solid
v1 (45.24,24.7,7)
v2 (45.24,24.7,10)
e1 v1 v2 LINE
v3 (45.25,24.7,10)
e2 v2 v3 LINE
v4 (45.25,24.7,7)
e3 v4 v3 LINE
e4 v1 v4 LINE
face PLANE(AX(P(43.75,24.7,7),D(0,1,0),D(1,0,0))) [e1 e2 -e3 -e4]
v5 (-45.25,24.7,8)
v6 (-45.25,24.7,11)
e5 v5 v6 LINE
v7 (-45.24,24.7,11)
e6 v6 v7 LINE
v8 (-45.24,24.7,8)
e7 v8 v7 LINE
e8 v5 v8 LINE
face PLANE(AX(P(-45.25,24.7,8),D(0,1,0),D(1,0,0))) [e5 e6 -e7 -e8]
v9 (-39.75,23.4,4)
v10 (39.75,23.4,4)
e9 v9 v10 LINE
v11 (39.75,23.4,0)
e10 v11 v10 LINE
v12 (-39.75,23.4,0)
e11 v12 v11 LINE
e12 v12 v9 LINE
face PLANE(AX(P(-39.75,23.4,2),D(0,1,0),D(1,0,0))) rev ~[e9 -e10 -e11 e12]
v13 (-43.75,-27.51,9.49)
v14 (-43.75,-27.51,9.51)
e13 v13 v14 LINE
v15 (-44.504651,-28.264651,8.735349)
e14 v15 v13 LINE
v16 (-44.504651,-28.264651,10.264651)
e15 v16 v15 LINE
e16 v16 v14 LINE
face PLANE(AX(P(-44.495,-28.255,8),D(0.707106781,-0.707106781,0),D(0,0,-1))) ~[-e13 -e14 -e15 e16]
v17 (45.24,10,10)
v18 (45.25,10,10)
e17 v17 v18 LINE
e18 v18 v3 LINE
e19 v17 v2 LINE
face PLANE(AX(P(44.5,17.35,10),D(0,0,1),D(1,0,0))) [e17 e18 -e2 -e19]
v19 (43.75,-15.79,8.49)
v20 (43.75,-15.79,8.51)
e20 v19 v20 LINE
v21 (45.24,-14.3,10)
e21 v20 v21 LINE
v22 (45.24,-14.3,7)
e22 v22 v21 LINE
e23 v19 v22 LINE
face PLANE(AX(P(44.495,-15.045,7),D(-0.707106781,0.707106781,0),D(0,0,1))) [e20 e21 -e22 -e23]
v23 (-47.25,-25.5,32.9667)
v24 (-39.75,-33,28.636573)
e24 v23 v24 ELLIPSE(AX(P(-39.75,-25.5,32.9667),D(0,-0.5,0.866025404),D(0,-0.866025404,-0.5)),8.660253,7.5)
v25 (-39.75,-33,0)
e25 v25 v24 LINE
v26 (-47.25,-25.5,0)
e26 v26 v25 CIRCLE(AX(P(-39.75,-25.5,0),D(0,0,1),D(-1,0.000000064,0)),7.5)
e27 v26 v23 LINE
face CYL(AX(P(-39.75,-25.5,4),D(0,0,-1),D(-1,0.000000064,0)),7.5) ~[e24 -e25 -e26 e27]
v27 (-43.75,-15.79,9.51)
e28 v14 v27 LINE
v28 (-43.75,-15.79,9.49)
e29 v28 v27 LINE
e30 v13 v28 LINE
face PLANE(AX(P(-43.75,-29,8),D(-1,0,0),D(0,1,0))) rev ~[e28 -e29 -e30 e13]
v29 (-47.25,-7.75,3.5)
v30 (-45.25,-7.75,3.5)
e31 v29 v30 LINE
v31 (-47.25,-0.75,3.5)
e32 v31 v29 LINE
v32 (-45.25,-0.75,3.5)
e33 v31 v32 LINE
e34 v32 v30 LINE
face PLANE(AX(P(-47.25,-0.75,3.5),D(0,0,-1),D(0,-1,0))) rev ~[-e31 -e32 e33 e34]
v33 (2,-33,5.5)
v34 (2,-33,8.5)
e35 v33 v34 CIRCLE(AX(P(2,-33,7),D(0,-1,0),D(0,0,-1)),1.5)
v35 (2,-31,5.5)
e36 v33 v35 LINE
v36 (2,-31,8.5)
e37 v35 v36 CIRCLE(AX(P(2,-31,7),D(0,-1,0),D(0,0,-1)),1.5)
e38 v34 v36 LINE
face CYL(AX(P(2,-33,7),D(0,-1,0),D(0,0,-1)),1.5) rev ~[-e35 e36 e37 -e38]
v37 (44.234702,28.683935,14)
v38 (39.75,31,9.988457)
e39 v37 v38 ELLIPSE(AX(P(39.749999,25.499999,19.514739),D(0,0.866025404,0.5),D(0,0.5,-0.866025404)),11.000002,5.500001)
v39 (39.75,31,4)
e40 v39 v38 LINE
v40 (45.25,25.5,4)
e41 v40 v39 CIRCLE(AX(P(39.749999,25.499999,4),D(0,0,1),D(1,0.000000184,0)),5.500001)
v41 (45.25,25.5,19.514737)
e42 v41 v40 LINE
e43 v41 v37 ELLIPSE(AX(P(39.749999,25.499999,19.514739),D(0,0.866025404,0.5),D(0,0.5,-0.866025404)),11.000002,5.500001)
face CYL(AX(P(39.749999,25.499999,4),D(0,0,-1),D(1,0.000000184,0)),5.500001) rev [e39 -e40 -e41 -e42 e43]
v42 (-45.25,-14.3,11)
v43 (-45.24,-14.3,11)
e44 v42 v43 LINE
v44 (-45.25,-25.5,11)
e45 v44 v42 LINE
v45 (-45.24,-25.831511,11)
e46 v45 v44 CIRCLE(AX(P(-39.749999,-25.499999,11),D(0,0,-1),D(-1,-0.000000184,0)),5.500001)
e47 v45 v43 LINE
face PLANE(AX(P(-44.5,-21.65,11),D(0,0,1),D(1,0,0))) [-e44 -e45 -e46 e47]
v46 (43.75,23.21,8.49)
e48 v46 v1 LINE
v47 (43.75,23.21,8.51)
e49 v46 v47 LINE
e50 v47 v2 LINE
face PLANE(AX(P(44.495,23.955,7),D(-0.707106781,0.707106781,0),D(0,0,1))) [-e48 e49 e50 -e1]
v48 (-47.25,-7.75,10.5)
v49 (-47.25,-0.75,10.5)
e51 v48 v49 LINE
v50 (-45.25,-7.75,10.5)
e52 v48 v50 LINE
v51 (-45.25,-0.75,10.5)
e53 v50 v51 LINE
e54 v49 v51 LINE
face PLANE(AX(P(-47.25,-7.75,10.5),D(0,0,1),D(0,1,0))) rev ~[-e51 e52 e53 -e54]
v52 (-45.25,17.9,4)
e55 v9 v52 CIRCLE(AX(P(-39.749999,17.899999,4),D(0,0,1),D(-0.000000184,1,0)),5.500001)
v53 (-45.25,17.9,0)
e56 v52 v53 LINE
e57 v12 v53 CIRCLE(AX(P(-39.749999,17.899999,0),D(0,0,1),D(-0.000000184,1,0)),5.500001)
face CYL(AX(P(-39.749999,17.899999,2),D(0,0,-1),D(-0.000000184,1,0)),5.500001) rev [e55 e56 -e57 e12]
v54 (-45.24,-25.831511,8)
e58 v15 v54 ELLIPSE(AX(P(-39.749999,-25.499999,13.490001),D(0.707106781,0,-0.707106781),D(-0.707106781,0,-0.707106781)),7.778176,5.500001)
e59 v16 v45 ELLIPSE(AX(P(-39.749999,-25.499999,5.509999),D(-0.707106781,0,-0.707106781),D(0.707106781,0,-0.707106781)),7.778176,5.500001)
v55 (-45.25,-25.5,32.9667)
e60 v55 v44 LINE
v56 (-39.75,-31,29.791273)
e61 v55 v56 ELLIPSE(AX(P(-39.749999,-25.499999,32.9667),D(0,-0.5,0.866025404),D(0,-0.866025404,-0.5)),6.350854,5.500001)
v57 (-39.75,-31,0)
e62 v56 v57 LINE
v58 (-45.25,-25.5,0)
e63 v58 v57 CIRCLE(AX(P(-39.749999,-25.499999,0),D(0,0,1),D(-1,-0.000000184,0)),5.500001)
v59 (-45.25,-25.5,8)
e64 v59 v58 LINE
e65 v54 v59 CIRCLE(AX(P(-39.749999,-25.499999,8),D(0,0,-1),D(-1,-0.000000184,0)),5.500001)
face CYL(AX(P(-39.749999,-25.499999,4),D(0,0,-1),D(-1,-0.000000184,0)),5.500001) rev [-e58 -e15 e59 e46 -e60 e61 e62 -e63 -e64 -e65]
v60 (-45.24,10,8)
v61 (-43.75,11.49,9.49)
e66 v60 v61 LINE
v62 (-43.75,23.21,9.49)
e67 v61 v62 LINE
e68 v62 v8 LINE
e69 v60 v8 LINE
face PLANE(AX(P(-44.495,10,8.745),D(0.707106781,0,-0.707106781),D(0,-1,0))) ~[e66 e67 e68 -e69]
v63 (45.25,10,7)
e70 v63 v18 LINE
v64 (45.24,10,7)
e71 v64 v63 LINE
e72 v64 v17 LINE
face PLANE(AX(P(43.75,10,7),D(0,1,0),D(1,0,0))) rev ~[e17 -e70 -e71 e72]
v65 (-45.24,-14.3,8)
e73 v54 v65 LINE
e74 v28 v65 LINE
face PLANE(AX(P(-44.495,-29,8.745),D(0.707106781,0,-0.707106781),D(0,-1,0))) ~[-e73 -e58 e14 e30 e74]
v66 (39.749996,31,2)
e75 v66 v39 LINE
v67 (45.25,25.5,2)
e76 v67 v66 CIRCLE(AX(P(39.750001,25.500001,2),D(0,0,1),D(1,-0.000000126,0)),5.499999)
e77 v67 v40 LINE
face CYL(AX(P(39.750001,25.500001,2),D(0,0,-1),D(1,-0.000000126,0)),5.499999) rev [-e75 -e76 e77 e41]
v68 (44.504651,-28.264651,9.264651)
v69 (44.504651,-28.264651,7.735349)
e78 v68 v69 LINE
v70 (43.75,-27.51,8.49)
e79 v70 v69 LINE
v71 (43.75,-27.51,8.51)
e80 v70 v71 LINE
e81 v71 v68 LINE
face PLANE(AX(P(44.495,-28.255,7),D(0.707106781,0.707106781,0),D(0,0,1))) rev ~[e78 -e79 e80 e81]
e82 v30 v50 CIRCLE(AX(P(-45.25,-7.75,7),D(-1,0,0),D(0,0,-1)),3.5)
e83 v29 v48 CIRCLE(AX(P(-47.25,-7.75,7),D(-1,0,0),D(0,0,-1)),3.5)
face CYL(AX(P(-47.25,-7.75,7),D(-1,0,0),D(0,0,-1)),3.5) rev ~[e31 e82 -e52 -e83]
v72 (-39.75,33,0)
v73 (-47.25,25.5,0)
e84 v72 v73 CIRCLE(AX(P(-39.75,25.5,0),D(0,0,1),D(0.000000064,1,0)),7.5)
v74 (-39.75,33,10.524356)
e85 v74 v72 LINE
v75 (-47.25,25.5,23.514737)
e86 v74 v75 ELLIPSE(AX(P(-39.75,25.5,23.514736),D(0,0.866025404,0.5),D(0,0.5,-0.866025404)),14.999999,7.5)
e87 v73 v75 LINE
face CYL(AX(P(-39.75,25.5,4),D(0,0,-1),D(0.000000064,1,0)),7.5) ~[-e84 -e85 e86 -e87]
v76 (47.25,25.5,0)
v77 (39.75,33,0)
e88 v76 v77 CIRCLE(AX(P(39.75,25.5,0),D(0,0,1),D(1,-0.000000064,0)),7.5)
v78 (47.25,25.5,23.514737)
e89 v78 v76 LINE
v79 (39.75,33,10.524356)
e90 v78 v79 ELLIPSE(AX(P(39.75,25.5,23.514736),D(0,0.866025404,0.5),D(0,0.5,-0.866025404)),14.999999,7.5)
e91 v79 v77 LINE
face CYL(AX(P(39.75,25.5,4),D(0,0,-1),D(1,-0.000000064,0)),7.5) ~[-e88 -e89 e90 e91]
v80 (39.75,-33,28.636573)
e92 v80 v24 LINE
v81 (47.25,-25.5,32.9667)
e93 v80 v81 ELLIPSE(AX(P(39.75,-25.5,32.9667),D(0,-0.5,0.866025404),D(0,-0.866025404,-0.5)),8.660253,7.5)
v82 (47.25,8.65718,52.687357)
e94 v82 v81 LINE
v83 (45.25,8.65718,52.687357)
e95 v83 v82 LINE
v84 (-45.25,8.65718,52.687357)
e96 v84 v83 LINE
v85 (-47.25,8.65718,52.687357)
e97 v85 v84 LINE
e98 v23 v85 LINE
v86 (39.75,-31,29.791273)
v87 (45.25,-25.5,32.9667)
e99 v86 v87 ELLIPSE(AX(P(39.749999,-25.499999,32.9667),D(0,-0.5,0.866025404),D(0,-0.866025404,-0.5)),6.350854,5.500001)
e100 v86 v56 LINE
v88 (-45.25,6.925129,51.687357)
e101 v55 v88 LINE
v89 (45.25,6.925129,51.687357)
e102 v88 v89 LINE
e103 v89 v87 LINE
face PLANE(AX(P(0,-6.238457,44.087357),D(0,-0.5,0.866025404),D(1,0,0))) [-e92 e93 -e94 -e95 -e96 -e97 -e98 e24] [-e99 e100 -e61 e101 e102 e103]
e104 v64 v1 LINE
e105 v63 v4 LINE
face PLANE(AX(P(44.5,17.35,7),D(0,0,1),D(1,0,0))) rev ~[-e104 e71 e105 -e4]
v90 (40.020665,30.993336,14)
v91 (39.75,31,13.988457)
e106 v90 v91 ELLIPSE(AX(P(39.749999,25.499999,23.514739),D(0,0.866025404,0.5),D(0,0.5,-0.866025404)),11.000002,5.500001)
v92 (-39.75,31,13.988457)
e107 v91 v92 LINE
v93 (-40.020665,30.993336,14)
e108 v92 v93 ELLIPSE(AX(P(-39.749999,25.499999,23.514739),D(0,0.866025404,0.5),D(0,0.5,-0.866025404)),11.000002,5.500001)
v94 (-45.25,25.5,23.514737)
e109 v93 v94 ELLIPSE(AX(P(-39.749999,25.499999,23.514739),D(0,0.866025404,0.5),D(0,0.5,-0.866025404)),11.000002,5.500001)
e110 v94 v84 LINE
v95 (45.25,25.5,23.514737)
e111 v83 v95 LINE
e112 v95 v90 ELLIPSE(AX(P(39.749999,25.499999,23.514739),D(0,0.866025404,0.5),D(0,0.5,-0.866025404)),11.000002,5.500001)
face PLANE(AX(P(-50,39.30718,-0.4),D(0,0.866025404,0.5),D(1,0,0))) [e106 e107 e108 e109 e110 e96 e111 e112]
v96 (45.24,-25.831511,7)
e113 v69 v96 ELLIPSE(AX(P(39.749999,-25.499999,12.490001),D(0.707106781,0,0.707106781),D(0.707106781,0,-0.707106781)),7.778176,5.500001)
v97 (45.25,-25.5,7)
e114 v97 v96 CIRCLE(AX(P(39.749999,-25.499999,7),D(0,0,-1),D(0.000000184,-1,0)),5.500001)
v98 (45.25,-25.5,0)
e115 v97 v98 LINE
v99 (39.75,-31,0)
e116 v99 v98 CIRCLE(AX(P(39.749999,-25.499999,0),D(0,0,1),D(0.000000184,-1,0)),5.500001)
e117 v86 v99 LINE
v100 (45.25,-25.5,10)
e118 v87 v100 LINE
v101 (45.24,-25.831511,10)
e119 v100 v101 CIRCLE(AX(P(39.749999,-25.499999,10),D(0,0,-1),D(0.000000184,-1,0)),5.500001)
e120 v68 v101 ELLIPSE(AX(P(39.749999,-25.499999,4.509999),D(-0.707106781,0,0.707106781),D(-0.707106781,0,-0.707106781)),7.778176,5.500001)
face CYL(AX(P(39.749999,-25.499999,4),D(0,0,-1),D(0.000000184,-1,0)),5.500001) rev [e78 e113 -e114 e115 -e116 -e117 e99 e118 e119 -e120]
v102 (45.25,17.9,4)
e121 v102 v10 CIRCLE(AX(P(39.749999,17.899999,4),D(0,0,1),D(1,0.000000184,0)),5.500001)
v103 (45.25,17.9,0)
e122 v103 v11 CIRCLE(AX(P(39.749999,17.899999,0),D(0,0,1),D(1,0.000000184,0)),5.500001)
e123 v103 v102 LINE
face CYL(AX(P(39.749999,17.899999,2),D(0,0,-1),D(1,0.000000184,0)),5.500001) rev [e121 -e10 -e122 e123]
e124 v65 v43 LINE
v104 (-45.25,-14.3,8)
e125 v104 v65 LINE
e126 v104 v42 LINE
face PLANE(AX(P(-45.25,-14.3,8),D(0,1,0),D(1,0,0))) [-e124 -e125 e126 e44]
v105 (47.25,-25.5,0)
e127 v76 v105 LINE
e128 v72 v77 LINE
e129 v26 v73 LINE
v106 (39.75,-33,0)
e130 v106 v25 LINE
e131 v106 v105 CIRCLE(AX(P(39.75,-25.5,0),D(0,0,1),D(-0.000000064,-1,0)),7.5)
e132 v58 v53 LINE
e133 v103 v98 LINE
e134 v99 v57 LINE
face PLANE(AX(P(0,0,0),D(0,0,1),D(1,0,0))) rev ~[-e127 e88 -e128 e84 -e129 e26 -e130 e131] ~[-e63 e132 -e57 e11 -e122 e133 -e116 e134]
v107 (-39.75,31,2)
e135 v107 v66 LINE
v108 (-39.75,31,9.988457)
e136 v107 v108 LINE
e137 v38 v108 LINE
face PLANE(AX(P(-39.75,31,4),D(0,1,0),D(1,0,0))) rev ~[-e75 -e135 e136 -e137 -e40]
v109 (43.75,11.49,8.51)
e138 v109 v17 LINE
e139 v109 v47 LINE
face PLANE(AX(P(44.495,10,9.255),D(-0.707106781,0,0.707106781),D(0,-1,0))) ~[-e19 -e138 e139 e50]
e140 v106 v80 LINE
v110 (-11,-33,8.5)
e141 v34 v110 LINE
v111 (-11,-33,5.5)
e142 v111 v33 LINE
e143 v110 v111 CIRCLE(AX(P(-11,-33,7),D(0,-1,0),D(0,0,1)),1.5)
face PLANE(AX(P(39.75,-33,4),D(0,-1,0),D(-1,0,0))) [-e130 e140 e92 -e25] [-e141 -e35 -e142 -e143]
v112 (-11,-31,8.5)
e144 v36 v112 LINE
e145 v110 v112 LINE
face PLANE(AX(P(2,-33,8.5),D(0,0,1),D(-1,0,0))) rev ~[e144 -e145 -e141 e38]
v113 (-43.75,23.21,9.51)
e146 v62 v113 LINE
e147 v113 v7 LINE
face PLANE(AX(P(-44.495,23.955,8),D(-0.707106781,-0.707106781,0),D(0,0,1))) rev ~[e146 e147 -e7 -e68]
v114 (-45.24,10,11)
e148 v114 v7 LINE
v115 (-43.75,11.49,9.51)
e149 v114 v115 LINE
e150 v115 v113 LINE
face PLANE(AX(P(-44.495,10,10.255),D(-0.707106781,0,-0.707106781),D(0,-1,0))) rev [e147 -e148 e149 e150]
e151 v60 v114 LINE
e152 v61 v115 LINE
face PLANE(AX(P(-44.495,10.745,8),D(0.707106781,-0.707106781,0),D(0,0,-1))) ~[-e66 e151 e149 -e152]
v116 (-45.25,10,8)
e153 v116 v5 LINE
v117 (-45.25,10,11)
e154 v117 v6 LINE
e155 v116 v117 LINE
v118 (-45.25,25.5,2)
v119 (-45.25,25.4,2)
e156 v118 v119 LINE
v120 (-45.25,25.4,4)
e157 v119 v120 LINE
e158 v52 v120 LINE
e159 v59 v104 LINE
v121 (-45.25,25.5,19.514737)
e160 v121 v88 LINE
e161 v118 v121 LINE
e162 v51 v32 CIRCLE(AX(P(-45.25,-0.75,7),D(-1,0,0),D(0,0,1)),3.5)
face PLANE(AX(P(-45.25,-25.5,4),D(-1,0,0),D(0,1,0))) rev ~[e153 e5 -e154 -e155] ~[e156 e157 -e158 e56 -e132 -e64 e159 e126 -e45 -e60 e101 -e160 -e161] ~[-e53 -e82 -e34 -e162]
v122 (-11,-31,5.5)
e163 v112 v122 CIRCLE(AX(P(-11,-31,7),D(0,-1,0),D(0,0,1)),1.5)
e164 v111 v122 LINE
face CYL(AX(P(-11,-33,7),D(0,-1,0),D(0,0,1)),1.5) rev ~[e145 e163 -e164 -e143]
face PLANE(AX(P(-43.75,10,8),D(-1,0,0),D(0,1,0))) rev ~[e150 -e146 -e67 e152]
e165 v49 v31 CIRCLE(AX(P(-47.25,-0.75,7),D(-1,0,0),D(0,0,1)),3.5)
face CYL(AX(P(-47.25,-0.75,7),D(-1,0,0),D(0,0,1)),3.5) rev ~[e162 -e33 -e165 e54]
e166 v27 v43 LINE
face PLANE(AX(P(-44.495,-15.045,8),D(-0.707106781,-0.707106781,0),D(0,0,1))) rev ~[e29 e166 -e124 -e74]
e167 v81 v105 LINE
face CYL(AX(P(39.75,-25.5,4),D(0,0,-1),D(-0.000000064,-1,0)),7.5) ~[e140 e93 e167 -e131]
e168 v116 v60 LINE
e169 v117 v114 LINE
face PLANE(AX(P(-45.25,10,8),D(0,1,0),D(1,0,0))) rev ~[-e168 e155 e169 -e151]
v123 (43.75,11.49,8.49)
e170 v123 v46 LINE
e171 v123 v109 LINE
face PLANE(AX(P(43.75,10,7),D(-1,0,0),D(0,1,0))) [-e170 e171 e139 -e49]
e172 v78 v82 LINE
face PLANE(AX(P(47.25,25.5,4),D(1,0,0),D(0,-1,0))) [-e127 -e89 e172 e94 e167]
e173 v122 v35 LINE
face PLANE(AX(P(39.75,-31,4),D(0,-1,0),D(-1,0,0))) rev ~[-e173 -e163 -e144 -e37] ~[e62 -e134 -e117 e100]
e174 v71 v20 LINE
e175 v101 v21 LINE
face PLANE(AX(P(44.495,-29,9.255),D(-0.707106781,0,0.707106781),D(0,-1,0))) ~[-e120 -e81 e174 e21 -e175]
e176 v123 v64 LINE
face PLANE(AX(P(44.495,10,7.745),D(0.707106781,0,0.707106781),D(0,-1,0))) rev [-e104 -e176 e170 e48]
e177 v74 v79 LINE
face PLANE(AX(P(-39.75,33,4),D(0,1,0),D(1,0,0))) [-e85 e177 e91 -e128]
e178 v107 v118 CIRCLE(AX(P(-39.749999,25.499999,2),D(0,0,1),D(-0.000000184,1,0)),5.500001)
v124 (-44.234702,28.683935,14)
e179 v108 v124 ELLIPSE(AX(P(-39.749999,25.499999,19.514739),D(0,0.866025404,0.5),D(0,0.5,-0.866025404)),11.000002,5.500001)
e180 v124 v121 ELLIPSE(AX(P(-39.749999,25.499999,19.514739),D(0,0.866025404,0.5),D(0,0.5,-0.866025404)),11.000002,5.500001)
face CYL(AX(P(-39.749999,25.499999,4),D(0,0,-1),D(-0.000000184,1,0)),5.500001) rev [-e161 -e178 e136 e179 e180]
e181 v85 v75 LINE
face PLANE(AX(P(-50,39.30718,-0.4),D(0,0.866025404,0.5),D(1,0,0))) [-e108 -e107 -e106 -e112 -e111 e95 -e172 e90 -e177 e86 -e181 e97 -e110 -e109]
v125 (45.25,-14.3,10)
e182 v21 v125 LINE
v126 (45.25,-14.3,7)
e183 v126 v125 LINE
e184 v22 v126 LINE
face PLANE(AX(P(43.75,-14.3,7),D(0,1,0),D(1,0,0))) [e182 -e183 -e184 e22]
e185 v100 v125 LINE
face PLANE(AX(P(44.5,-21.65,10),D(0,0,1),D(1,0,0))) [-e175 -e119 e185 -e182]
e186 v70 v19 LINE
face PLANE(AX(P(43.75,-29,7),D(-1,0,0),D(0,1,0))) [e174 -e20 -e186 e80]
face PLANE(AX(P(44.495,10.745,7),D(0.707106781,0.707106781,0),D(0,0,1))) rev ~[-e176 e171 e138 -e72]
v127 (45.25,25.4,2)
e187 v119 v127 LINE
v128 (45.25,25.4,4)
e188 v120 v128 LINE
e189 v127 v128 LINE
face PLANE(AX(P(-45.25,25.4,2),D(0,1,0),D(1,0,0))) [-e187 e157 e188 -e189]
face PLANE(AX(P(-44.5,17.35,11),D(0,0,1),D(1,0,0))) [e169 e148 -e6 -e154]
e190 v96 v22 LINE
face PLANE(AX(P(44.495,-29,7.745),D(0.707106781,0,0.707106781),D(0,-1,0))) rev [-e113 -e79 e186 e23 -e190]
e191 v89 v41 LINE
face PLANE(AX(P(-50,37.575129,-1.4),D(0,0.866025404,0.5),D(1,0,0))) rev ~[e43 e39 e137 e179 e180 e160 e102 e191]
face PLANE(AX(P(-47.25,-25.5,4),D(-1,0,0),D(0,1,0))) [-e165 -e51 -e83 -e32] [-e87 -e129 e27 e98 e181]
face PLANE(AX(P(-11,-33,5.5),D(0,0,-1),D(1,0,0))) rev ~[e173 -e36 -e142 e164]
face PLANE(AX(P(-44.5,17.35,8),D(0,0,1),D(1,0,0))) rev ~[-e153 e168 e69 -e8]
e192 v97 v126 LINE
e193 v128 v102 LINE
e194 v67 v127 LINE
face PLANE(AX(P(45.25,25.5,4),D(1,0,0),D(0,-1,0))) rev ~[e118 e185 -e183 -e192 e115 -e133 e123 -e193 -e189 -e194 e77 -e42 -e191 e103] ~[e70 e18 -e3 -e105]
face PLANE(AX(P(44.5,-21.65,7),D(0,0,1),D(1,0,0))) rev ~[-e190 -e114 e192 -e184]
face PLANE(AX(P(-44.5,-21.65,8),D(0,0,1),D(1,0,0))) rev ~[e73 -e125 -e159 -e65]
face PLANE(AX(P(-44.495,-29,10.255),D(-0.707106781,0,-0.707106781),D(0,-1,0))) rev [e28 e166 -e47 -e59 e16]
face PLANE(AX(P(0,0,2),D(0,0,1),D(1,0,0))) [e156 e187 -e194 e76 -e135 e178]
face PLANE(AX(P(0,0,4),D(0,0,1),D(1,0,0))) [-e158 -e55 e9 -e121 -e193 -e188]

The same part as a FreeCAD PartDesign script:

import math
import FreeCAD as App
import Part
import Sketcher


def edges_at(feature, points):
    """Names of the edges that pass closest to the given points."""
    edges = feature.Shape.Edges
    near = lambda p: min(range(len(edges)), key=lambda i: edges[i].distToShape(Part.Vertex(*p))[0])
    return sorted({f"Edge{near(p) + 1}" for p in points})


def add_polygon(sketch, points):
    """Adds a closed chain of lines whose ends are joined by coincident constraints."""
    first, n = sketch.GeometryCount, len(points)
    for a, b in zip(points, points[1:] + points[:1]):
        sketch.addGeometry(Part.LineSegment(App.Vector(*a, 0), App.Vector(*b, 0)), False)
    for i in range(n):
        sketch.addConstraint(Sketcher.Constraint("Coincident", first + i, 2, first + (i + 1) % n, 1))

doc = App.newDocument("Part")
body = doc.addObject("PartDesign::Body", "Body")

sketch1 = doc.addObject("Sketcher::SketchObject", "Sketch")
body.addObject(sketch1)
sketch1.AttachmentSupport = (doc.XY_Plane, [""])
sketch1.MapMode = "FlatFace"
sketch1.AttachmentOffset = App.Placement(App.Vector(0, 0, 8), App.Rotation())
add_polygon(sketch1, [(-45.2, -14.3), (-45.2, -29), (-43.8, -29), (-43.8, -14.3)])
sketch1.addConstraint([
    Sketcher.Constraint("Vertical", 0),
    Sketcher.Constraint("Horizontal", 1),
    Sketcher.Constraint("Vertical", 2),
    Sketcher.Constraint("Horizontal", 3),
    Sketcher.Constraint("DistanceX", 1, 1, 1, 2, 1.5),
    Sketcher.Constraint("DistanceY", 0, 2, 0, 1, 14.7),
    Sketcher.Constraint("DistanceY", 0, 2, -1, 1, 29.0),
    Sketcher.Constraint("DistanceX", 0, 2, -1, 1, 45.25),
])
pad1 = doc.addObject("PartDesign::Pad", "Pad")
body.addObject(pad1)
pad1.Profile = sketch1
pad1.Length = 3
doc.recompute()

chamfer = doc.addObject("PartDesign::Chamfer", "Chamfer")
body.addObject(chamfer)
chamfer.Base = (pad1, edges_at(pad1, [
    (-43.75, -29, 9.5),
    (-43.75, -21.65, 11),
    (-43.75, -14.3, 9.5),
    (-43.75, -21.65, 8),
]))
chamfer.Size = 1.49
body2 = doc.addObject("PartDesign::Body", "Body001")

sketch2 = doc.addObject("Sketcher::SketchObject", "Sketch001")
body2.addObject(sketch2)
sketch2.AttachmentSupport = (doc.getObject("XY_Plane001"), [""])
sketch2.MapMode = "FlatFace"
sketch2.AttachmentOffset = App.Placement(App.Vector(0, 0, 7), App.Rotation())
add_polygon(sketch2, [(43.8, 24.7), (43.8, 10), (45.2, 10), (45.2, 24.7)])
sketch2.addConstraint([
    Sketcher.Constraint("Vertical", 0),
    Sketcher.Constraint("Horizontal", 1),
    Sketcher.Constraint("Vertical", 2),
    Sketcher.Constraint("Horizontal", 3),
    Sketcher.Constraint("DistanceX", 1, 1, 1, 2, 1.5),
    Sketcher.Constraint("DistanceY", 0, 2, 0, 1, 14.7),
    Sketcher.Constraint("DistanceY", -1, 1, 0, 2, 10.0),
    Sketcher.Constraint("DistanceX", -1, 1, 0, 2, 43.75),
])
pad2 = doc.addObject("PartDesign::Pad", "Pad001")
body2.addObject(pad2)
pad2.Profile = sketch2
pad2.Length = 3
doc.recompute()

chamfer2 = doc.addObject("PartDesign::Chamfer", "Chamfer001")
body2.addObject(chamfer2)
chamfer2.Base = (pad2, edges_at(pad2, [
    (43.75, 10, 8.5),
    (43.75, 17.35, 10),
    (43.75, 24.7, 8.5),
    (43.75, 17.35, 7),
]))
chamfer2.Size = 1.49
body3 = doc.addObject("PartDesign::Body", "Body002")

sketch3 = doc.addObject("Sketcher::SketchObject", "Sketch002")
body3.addObject(sketch3)
sketch3.AttachmentSupport = (doc.getObject("XY_Plane002"), [""])
sketch3.MapMode = "FlatFace"
sketch3.AttachmentOffset = App.Placement(App.Vector(0, 0, 8), App.Rotation())
add_polygon(sketch3, [(-45.2, 24.7), (-45.2, 10), (-43.8, 10), (-43.8, 24.7)])
sketch3.addConstraint([
    Sketcher.Constraint("Vertical", 0),
    Sketcher.Constraint("Horizontal", 1),
    Sketcher.Constraint("Vertical", 2),
    Sketcher.Constraint("Horizontal", 3),
    Sketcher.Constraint("DistanceX", 1, 1, 1, 2, 1.5),
    Sketcher.Constraint("DistanceY", 0, 2, 0, 1, 14.7),
    Sketcher.Constraint("DistanceY", -1, 1, 0, 2, 10.0),
    Sketcher.Constraint("DistanceX", 0, 2, -1, 1, 45.25),
])
pad3 = doc.addObject("PartDesign::Pad", "Pad002")
body3.addObject(pad3)
pad3.Profile = sketch3
pad3.Length = 3
doc.recompute()

chamfer3 = doc.addObject("PartDesign::Chamfer", "Chamfer002")
body3.addObject(chamfer3)
chamfer3.Base = (pad3, edges_at(pad3, [
    (-43.75, 10, 9.5),
    (-43.75, 17.35, 11),
    (-43.75, 24.7, 9.5),
    (-43.75, 17.35, 8),
]))
chamfer3.Size = 1.49
body4 = doc.addObject("PartDesign::Body", "Body003")

sketch4 = doc.addObject("Sketcher::SketchObject", "Sketch003")
body4.addObject(sketch4)
sketch4.AttachmentSupport = (doc.getObject("YZ_Plane003"), [""])
sketch4.MapMode = "FlatFace"
sketch4.AttachmentOffset = App.Placement(App.Vector(0, 0, -47.25), App.Rotation())
sketch4.addGeometry([
    Part.ArcOfCircle(Part.Circle(App.Vector(-0.8, 7, 0), App.Vector(0, 0, 1), 3.5), math.radians(-90), math.radians(90)),
    Part.LineSegment(App.Vector(-0.8, 3.5, 0), App.Vector(-7.8, 3.5, 0)),
    Part.ArcOfCircle(Part.Circle(App.Vector(-7.8, 7, 0), App.Vector(0, 0, 1), 3.5), math.radians(90), math.radians(270)),
    Part.LineSegment(App.Vector(-7.8, 10.5, 0), App.Vector(-0.8, 10.5, 0)),
], False)
sketch4.addConstraint([
    Sketcher.Constraint("Tangent", 0, 1, 1, 1),
    Sketcher.Constraint("Tangent", 1, 2, 2, 2),
    Sketcher.Constraint("Tangent", 2, 1, 3, 1),
    Sketcher.Constraint("Tangent", 3, 2, 0, 2),
    Sketcher.Constraint("Horizontal", 1),
    Sketcher.Constraint("Horizontal", 3),
    Sketcher.Constraint("Radius", 0, 3.5),
    Sketcher.Constraint("DistanceX", 1, 2, 1, 1, 7.0),
    Sketcher.Constraint("DistanceY", -1, 1, 0, 3, 7.0),
    Sketcher.Constraint("DistanceX", 0, 3, -1, 1, 0.75),
])
pad4 = doc.addObject("PartDesign::Pad", "Pad003")
body4.addObject(pad4)
pad4.Profile = sketch4
pad4.Length = 3
body5 = doc.addObject("PartDesign::Body", "Body004")

sketch5 = doc.addObject("Sketcher::SketchObject", "Sketch004")
body5.addObject(sketch5)
sketch5.AttachmentSupport = (doc.getObject("XZ_Plane004"), [""])
sketch5.MapMode = "FlatFace"
sketch5.AttachmentOffset = App.Placement(App.Vector(0, 0, 33), App.Rotation())
sketch5.addGeometry([
    Part.ArcOfCircle(Part.Circle(App.Vector(2, 7, 0), App.Vector(0, 0, 1), 1.5), math.radians(-90), math.radians(90)),
    Part.LineSegment(App.Vector(2, 8.5, 0), App.Vector(-11, 8.5, 0)),
    Part.ArcOfCircle(Part.Circle(App.Vector(-11, 7, 0), App.Vector(0, 0, 1), 1.5), math.radians(90), math.radians(270)),
    Part.LineSegment(App.Vector(-11, 5.5, 0), App.Vector(2, 5.5, 0)),
], False)
sketch5.addConstraint([
    Sketcher.Constraint("Tangent", 0, 2, 1, 1),
    Sketcher.Constraint("Tangent", 1, 2, 2, 1),
    Sketcher.Constraint("Tangent", 2, 2, 3, 1),
    Sketcher.Constraint("Tangent", 3, 2, 0, 1),
    Sketcher.Constraint("Horizontal", 1),
    Sketcher.Constraint("Horizontal", 3),
    Sketcher.Constraint("Radius", 0, 1.5),
    Sketcher.Constraint("DistanceX", 1, 2, 1, 1, 13.0),
    Sketcher.Constraint("DistanceX", -1, 1, 0, 3, 2.0),
    Sketcher.Constraint("DistanceY", -1, 1, 0, 3, 7.0),
])
pad5 = doc.addObject("PartDesign::Pad", "Pad004")
body5.addObject(pad5)
pad5.Profile = sketch5
pad5.Length = 3
pad5.Reversed = True
body6 = doc.addObject("PartDesign::Body", "Body005")

sketch6 = doc.addObject("Sketcher::SketchObject", "Sketch005")
body6.addObject(sketch6)
sketch6.AttachmentSupport = (doc.getObject("XY_Plane005"), [""])
sketch6.MapMode = "FlatFace"
add_polygon(sketch6, [(0, 100), (0, 0), (100, 0), (100, 100)])
sketch6.addConstraint([
    Sketcher.Constraint("Vertical", 0),
    Sketcher.Constraint("Horizontal", 1),
    Sketcher.Constraint("Vertical", 2),
    Sketcher.Constraint("Horizontal", 3),
    Sketcher.Constraint("Coincident", 0, 2, -1, 1),
    Sketcher.Constraint("Equal", 3, 0),
    Sketcher.Constraint("DistanceX", 1, 1, 1, 2, 100.0),
])
pad6 = doc.addObject("PartDesign::Pad", "Pad005")
body6.addObject(pad6)
pad6.Profile = sketch6
pad6.Length = 100
body7 = doc.addObject("PartDesign::Body", "Body006")
doc.recompute()

body6.Placement = App.Placement(App.Vector(-50, -49.539727, 19.087357), App.Rotation(App.Vector(1, 0, 0), 30))
boolean = doc.addObject("PartDesign::Boolean", "Boolean")
body7.addObject(boolean)
boolean.Type = "Fuse"
boolean.addObjects([body6])
body8 = doc.addObject("PartDesign::Body", "Body007")

sketch7 = doc.addObject("Sketcher::SketchObject", "Sketch006")
body8.addObject(sketch7)
sketch7.AttachmentSupport = (doc.getObject("XY_Plane007"), [""])
sketch7.MapMode = "FlatFace"
add_polygon(sketch7, [(0, 100), (0, 0), (100, 0), (100, 100)])
sketch7.addConstraint([
    Sketcher.Constraint("Vertical", 0),
    Sketcher.Constraint("Horizontal", 1),
    Sketcher.Constraint("Vertical", 2),
    Sketcher.Constraint("Horizontal", 3),
    Sketcher.Constraint("Coincident", 0, 2, -1, 1),
    Sketcher.Constraint("Equal", 3, 0),
    Sketcher.Constraint("DistanceX", 1, 1, 1, 2, 100.0),
])
pad7 = doc.addObject("PartDesign::Pad", "Pad006")
body8.addObject(pad7)
pad7.Profile = sketch7
pad7.Length = 100
body9 = doc.addObject("PartDesign::Body", "Body008")
doc.recompute()

body8.Placement = App.Placement(App.Vector(-50, 39.30718, -0.4), App.Rotation(App.Vector(1, 0, 0), 30))
boolean2 = doc.addObject("PartDesign::Boolean", "Boolean001")
body9.addObject(boolean2)
boolean2.Type = "Fuse"
boolean2.addObjects([body8])
body10 = doc.addObject("PartDesign::Body", "Body009")

sketch8 = doc.addObject("Sketcher::SketchObject", "Sketch007")
body10.addObject(sketch8)
sketch8.AttachmentSupport = (doc.getObject("XY_Plane009"), [""])
sketch8.MapMode = "FlatFace"
sketch8.addGeometry([
    Part.ArcOfCircle(Part.Circle(App.Vector(-40, 26, 0), App.Vector(0, 0, 1), 7), math.radians(90), math.radians(180)),
    Part.LineSegment(App.Vector(-47, 26, 0), App.Vector(-47, -26, 0)),
    Part.ArcOfCircle(Part.Circle(App.Vector(-40, -26, 0), App.Vector(0, 0, 1), 7), math.radians(180), math.radians(270)),
    Part.LineSegment(App.Vector(-40, -33, 0), App.Vector(40, -33, 0)),
    Part.ArcOfCircle(Part.Circle(App.Vector(40, -26, 0), App.Vector(0, 0, 1), 7), math.radians(-90), math.radians(0)),
    Part.LineSegment(App.Vector(47, -26, 0), App.Vector(47, 26, 0)),
    Part.ArcOfCircle(Part.Circle(App.Vector(40, 26, 0), App.Vector(0, 0, 1), 7), math.radians(0), math.radians(90)),
    Part.LineSegment(App.Vector(40, 33, 0), App.Vector(-40, 33, 0)),
    Part.ArcOfCircle(Part.Circle(App.Vector(-40, 18, 0), App.Vector(0, 0, 1), 6), math.radians(90), math.radians(180)),
    Part.LineSegment(App.Vector(-40, 23, 0), App.Vector(40, 23, 0)),
    Part.ArcOfCircle(Part.Circle(App.Vector(40, 18, 0), App.Vector(0, 0, 1), 6), math.radians(0), math.radians(90)),
    Part.LineSegment(App.Vector(45, 18, 0), App.Vector(45, -26, 0)),
    Part.ArcOfCircle(Part.Circle(App.Vector(40, -25, 0), App.Vector(0, 0, 1), 6), math.radians(-90), math.radians(0)),
    Part.LineSegment(App.Vector(40, -31, 0), App.Vector(-40, -31, 0)),
    Part.ArcOfCircle(Part.Circle(App.Vector(-40, -25, 0), App.Vector(0, 0, 1), 6), math.radians(-180), math.radians(-90)),
    Part.LineSegment(App.Vector(-45, -26, 0), App.Vector(-45, 18, 0)),
], False)
sketch8.addConstraint([
    Sketcher.Constraint("Tangent", 0, 2, 1, 1),
    Sketcher.Constraint("Tangent", 1, 2, 2, 1),
    Sketcher.Constraint("Tangent", 2, 2, 3, 1),
    Sketcher.Constraint("Tangent", 3, 2, 4, 1),
    Sketcher.Constraint("Tangent", 4, 2, 5, 1),
    Sketcher.Constraint("Tangent", 5, 2, 6, 1),
    Sketcher.Constraint("Tangent", 6, 2, 7, 1),
    Sketcher.Constraint("Tangent", 7, 2, 0, 1),
    Sketcher.Constraint("Tangent", 8, 1, 9, 1),
    Sketcher.Constraint("Tangent", 9, 2, 10, 2),
    Sketcher.Constraint("Tangent", 10, 1, 11, 1),
    Sketcher.Constraint("Tangent", 11, 2, 12, 2),
    Sketcher.Constraint("Tangent", 12, 1, 13, 1),
    Sketcher.Constraint("Tangent", 13, 2, 14, 2),
    Sketcher.Constraint("Tangent", 14, 1, 15, 1),
    Sketcher.Constraint("Tangent", 15, 2, 8, 2),
    Sketcher.Constraint("Vertical", 1),
    Sketcher.Constraint("Horizontal", 3),
    Sketcher.Constraint("Vertical", 5),
    Sketcher.Constraint("Horizontal", 7),
    Sketcher.Constraint("Horizontal", 9),
    Sketcher.Constraint("Vertical", 11),
    Sketcher.Constraint("Horizontal", 13),
    Sketcher.Constraint("Vertical", 15),
    Sketcher.Constraint("Coincident", 12, 3, 4, 3),
    Sketcher.Constraint("Coincident", 14, 3, 2, 3),
    Sketcher.Constraint("Equal", 0, 2),
    Sketcher.Constraint("Equal", 2, 4),
    Sketcher.Constraint("Equal", 4, 6),
    Sketcher.Constraint("Equal", 8, 10),
    Sketcher.Constraint("Equal", 10, 12),
    Sketcher.Constraint("Symmetric", 0, 3, 4, 3, -1, 1),
    Sketcher.Constraint("Radius", 0, 7.5),
    Sketcher.Constraint("Radius", 8, 5.500001),
    Sketcher.Constraint("DistanceY", 1, 2, 1, 1, 51.0),
    Sketcher.Constraint("DistanceX", 3, 1, 3, 2, 79.5),
    Sketcher.Constraint("DistanceY", 11, 2, 11, 1, 43.4),
])
pad8 = doc.addObject("PartDesign::Pad", "Pad007")
body10.addObject(pad8)
pad8.Profile = sketch8
pad8.Length = 2
body11 = doc.addObject("PartDesign::Body", "Body010")

sketch9 = doc.addObject("Sketcher::SketchObject", "Sketch008")
body11.addObject(sketch9)
sketch9.AttachmentSupport = (doc.getObject("XY_Plane010"), [""])
sketch9.MapMode = "FlatFace"
sketch9.AttachmentOffset = App.Placement(App.Vector(0, 0, 2), App.Rotation())
sketch9.addGeometry([
    Part.ArcOfCircle(Part.Circle(App.Vector(-39.75, 25.5, 0), App.Vector(0, 0, 1), 7.5), math.radians(90), math.radians(180)),
    Part.LineSegment(App.Vector(-47.25, 25.5, 0), App.Vector(-47.25, -25.5, 0)),
    Part.ArcOfCircle(Part.Circle(App.Vector(-39.75, -25.5, 0), App.Vector(0, 0, 1), 7.5), math.radians(180), math.radians(270)),
    Part.LineSegment(App.Vector(-39.75, -33, 0), App.Vector(39.75, -33, 0)),
    Part.ArcOfCircle(Part.Circle(App.Vector(39.75, -25.5, 0), App.Vector(0, 0, 1), 7.5), math.radians(-90), math.radians(0)),
    Part.LineSegment(App.Vector(47.25, -25.5, 0), App.Vector(47.25, 25.5, 0)),
    Part.ArcOfCircle(Part.Circle(App.Vector(39.75, 25.5, 0), App.Vector(0, 0, 1), 7.5), math.radians(0), math.radians(90)),
    Part.LineSegment(App.Vector(39.75, 33, 0), App.Vector(-39.75, 33, 0)),
    Part.ArcOfCircle(Part.Circle(App.Vector(-39.75, 17.9, 0), App.Vector(0, 0, 1), 5.5), math.radians(90), math.radians(180)),
    Part.LineSegment(App.Vector(-39.75, 23.4, 0), App.Vector(39.75, 23.4, 0)),
    Part.ArcOfCircle(Part.Circle(App.Vector(39.75, 17.9, 0), App.Vector(0, 0, 1), 5.5), math.radians(0), math.radians(90)),
    Part.LineSegment(App.Vector(45.25, 17.9, 0), App.Vector(45.25, -25.5, 0)),
    Part.ArcOfCircle(Part.Circle(App.Vector(39.75, -25.5, 0), App.Vector(0, 0, 1), 5.5), math.radians(-90), math.radians(0)),
    Part.LineSegment(App.Vector(39.75, -31, 0), App.Vector(-39.75, -31, 0)),
    Part.ArcOfCircle(Part.Circle(App.Vector(-39.75, -25.5, 0), App.Vector(0, 0, 1), 5.5), math.radians(-180), math.radians(-90)),
    Part.LineSegment(App.Vector(-45.25, -25.5, 0), App.Vector(-45.25, 17.9, 0)),
    Part.ArcOfCircle(Part.Circle(App.Vector(-39.75, 25.5, 0), App.Vector(0, 0, 1), 5.5), math.radians(90), math.radians(180)),
    Part.LineSegment(App.Vector(-39.75, 31, 0), App.Vector(39.75, 31, 0)),
    Part.ArcOfCircle(Part.Circle(App.Vector(39.75, 25.5, 0), App.Vector(0, 0, 1), 5.5), math.radians(0), math.radians(90)),
    Part.LineSegment(App.Vector(45.25, 25.5, 0), App.Vector(45.25, 25.4, 0)),
    Part.LineSegment(App.Vector(45.25, 25.4, 0), App.Vector(-45.25, 25.4, 0)),
    Part.LineSegment(App.Vector(-45.25, 25.4, 0), App.Vector(-45.25, 25.5, 0)),
], False)
sketch9.addConstraint([
    Sketcher.Constraint("Tangent", 0, 2, 1, 1),
    Sketcher.Constraint("Tangent", 1, 2, 2, 1),
    Sketcher.Constraint("Tangent", 2, 2, 3, 1),
    Sketcher.Constraint("Tangent", 3, 2, 4, 1),
    Sketcher.Constraint("Tangent", 4, 2, 5, 1),
    Sketcher.Constraint("Tangent", 5, 2, 6, 1),
    Sketcher.Constraint("Tangent", 6, 2, 7, 1),
    Sketcher.Constraint("Tangent", 7, 2, 0, 1),
    Sketcher.Constraint("Tangent", 8, 1, 9, 1),
    Sketcher.Constraint("Tangent", 9, 2, 10, 2),
    Sketcher.Constraint("Tangent", 10, 1, 11, 1),
    Sketcher.Constraint("Tangent", 11, 2, 12, 2),
    Sketcher.Constraint("Tangent", 12, 1, 13, 1),
    Sketcher.Constraint("Tangent", 13, 2, 14, 2),
    Sketcher.Constraint("Tangent", 14, 1, 15, 1),
    Sketcher.Constraint("Tangent", 15, 2, 8, 2),
    Sketcher.Constraint("Tangent", 16, 1, 17, 1),
    Sketcher.Constraint("Tangent", 17, 2, 18, 2),
    Sketcher.Constraint("Tangent", 18, 1, 19, 1),
    Sketcher.Constraint("Coincident", 19, 2, 20, 1),
    Sketcher.Constraint("Coincident", 20, 2, 21, 1),
    Sketcher.Constraint("Tangent", 21, 2, 16, 2),
    Sketcher.Constraint("Vertical", 1),
    Sketcher.Constraint("Horizontal", 3),
    Sketcher.Constraint("Vertical", 5),
    Sketcher.Constraint("Horizontal", 7),
    Sketcher.Constraint("Horizontal", 9),
    Sketcher.Constraint("Vertical", 11),
    Sketcher.Constraint("Horizontal", 13),
    Sketcher.Constraint("Vertical", 15),
    Sketcher.Constraint("Horizontal", 17),
    Sketcher.Constraint("Vertical", 19),
    Sketcher.Constraint("Horizontal", 20),
    Sketcher.Constraint("Vertical", 21),
    Sketcher.Constraint("Coincident", 12, 3, 4, 3),
    Sketcher.Constraint("Coincident", 14, 3, 2, 3),
    Sketcher.Constraint("Coincident", 16, 3, 0, 3),
    Sketcher.Constraint("Coincident", 18, 3, 6, 3),
    Sketcher.Constraint("Equal", 0, 2),
    Sketcher.Constraint("Equal", 2, 4),
    Sketcher.Constraint("Equal", 4, 6),
    Sketcher.Constraint("Equal", 8, 10),
    Sketcher.Constraint("Equal", 10, 12),
    Sketcher.Constraint("Equal", 14, 16),
    Sketcher.Constraint("Symmetric", 0, 3, 4, 3, -1, 1),
    Sketcher.Constraint("Radius", 0, 7.5),
    Sketcher.Constraint("Radius", 8, 5.500001),
    Sketcher.Constraint("DistanceY", 1, 2, 1, 1, 51.0),
    Sketcher.Constraint("DistanceX", 3, 1, 3, 2, 79.5),
    Sketcher.Constraint("DistanceY", 11, 2, 11, 1, 43.4),
    Sketcher.Constraint("DistanceY", 19, 2, 19, 1, 0.1),
])
pad9 = doc.addObject("PartDesign::Pad", "Pad008")
body11.addObject(pad9)
pad9.Profile = sketch9
pad9.Length = 2
body12 = doc.addObject("PartDesign::Body", "Body011")

sketch10 = doc.addObject("Sketcher::SketchObject", "Sketch009")
body12.addObject(sketch10)
sketch10.AttachmentSupport = (doc.getObject("XY_Plane011"), [""])
sketch10.MapMode = "FlatFace"
sketch10.AttachmentOffset = App.Placement(App.Vector(0, 0, 4), App.Rotation())
sketch10.addGeometry([
    Part.ArcOfCircle(Part.Circle(App.Vector(-40, 26, 0), App.Vector(0, 0, 1), 7), math.radians(90), math.radians(180)),
    Part.LineSegment(App.Vector(-47, 26, 0), App.Vector(-47, -26, 0)),
    Part.ArcOfCircle(Part.Circle(App.Vector(-40, -26, 0), App.Vector(0, 0, 1), 7), math.radians(180), math.radians(270)),
    Part.LineSegment(App.Vector(-40, -33, 0), App.Vector(40, -33, 0)),
    Part.ArcOfCircle(Part.Circle(App.Vector(40, -26, 0), App.Vector(0, 0, 1), 7), math.radians(-90), math.radians(0)),
    Part.LineSegment(App.Vector(47, -26, 0), App.Vector(47, 26, 0)),
    Part.ArcOfCircle(Part.Circle(App.Vector(40, 26, 0), App.Vector(0, 0, 1), 7), math.radians(0), math.radians(90)),
    Part.LineSegment(App.Vector(40, 33, 0), App.Vector(-40, 33, 0)),
    Part.ArcOfCircle(Part.Circle(App.Vector(-40, 25, 0), App.Vector(0, 0, 1), 6), math.radians(90), math.radians(180)),
    Part.LineSegment(App.Vector(-40, 31, 0), App.Vector(40, 31, 0)),
    Part.ArcOfCircle(Part.Circle(App.Vector(40, 25, 0), App.Vector(0, 0, 1), 6), math.radians(0), math.radians(90)),
    Part.LineSegment(App.Vector(45, 26, 0), App.Vector(45, -26, 0)),
    Part.ArcOfCircle(Part.Circle(App.Vector(40, -25, 0), App.Vector(0, 0, 1), 6), math.radians(-90), math.radians(0)),
    Part.LineSegment(App.Vector(40, -31, 0), App.Vector(-40, -31, 0)),
    Part.ArcOfCircle(Part.Circle(App.Vector(-40, -25, 0), App.Vector(0, 0, 1), 6), math.radians(-180), math.radians(-90)),
    Part.LineSegment(App.Vector(-45, -26, 0), App.Vector(-45, 26, 0)),
], False)
sketch10.addConstraint([
    Sketcher.Constraint("Tangent", 0, 2, 1, 1),
    Sketcher.Constraint("Tangent", 1, 2, 2, 1),
    Sketcher.Constraint("Tangent", 2, 2, 3, 1),
    Sketcher.Constraint("Tangent", 3, 2, 4, 1),
    Sketcher.Constraint("Tangent", 4, 2, 5, 1),
    Sketcher.Constraint("Tangent", 5, 2, 6, 1),
    Sketcher.Constraint("Tangent", 6, 2, 7, 1),
    Sketcher.Constraint("Tangent", 7, 2, 0, 1),
    Sketcher.Constraint("Tangent", 8, 1, 9, 1),
    Sketcher.Constraint("Tangent", 9, 2, 10, 2),
    Sketcher.Constraint("Tangent", 10, 1, 11, 1),
    Sketcher.Constraint("Tangent", 11, 2, 12, 2),
    Sketcher.Constraint("Tangent", 12, 1, 13, 1),
    Sketcher.Constraint("Tangent", 13, 2, 14, 2),
    Sketcher.Constraint("Tangent", 14, 1, 15, 1),
    Sketcher.Constraint("Tangent", 15, 2, 8, 2),
    Sketcher.Constraint("Vertical", 1),
    Sketcher.Constraint("Horizontal", 3),
    Sketcher.Constraint("Vertical", 5),
    Sketcher.Constraint("Horizontal", 7),
    Sketcher.Constraint("Horizontal", 9),
    Sketcher.Constraint("Vertical", 11),
    Sketcher.Constraint("Horizontal", 13),
    Sketcher.Constraint("Vertical", 15),
    Sketcher.Constraint("Coincident", 8, 3, 0, 3),
    Sketcher.Constraint("Coincident", 10, 3, 6, 3),
    Sketcher.Constraint("Coincident", 12, 3, 4, 3),
    Sketcher.Constraint("Equal", 0, 2),
    Sketcher.Constraint("Equal", 2, 4),
    Sketcher.Constraint("Equal", 4, 6),
    Sketcher.Constraint("Equal", 12, 14),
    Sketcher.Constraint("Symmetric", 0, 3, 4, 3, -1, 1),
    Sketcher.Constraint("Radius", 0, 7.5),
    Sketcher.Constraint("Radius", 8, 5.500001),
    Sketcher.Constraint("DistanceY", 1, 2, 1, 1, 51.0),
    Sketcher.Constraint("DistanceX", 3, 1, 3, 2, 79.5),
])
pad10 = doc.addObject("PartDesign::Pad", "Pad009")
body12.addObject(pad10)
pad10.Profile = sketch10
pad10.Length = 10
body13 = doc.addObject("PartDesign::Body", "Body012")

sketch11 = doc.addObject("Sketcher::SketchObject", "Sketch010")
body13.addObject(sketch11)
sketch11.AttachmentSupport = (doc.getObject("XY_Plane012"), [""])
sketch11.MapMode = "FlatFace"
sketch11.AttachmentOffset = App.Placement(App.Vector(0, 0, 4), App.Rotation())
sketch11.addGeometry([
    Part.ArcOfCircle(Part.Circle(App.Vector(-40, 26, 0), App.Vector(0, 0, 1), 7), math.radians(90), math.radians(180)),
    Part.LineSegment(App.Vector(-47, 26, 0), App.Vector(-47, -26, 0)),
    Part.ArcOfCircle(Part.Circle(App.Vector(-40, -26, 0), App.Vector(0, 0, 1), 7), math.radians(180), math.radians(270)),
    Part.LineSegment(App.Vector(-40, -33, 0), App.Vector(40, -33, 0)),
    Part.ArcOfCircle(Part.Circle(App.Vector(40, -26, 0), App.Vector(0, 0, 1), 7), math.radians(-90), math.radians(0)),
    Part.LineSegment(App.Vector(47, -26, 0), App.Vector(47, 26, 0)),
    Part.ArcOfCircle(Part.Circle(App.Vector(40, 26, 0), App.Vector(0, 0, 1), 7), math.radians(0), math.radians(90)),
    Part.LineSegment(App.Vector(40, 33, 0), App.Vector(-40, 33, 0)),
    Part.ArcOfCircle(Part.Circle(App.Vector(-40, 25, 0), App.Vector(0, 0, 1), 6), math.radians(90), math.radians(180)),
    Part.LineSegment(App.Vector(-40, 31, 0), App.Vector(40, 31, 0)),
    Part.ArcOfCircle(Part.Circle(App.Vector(40, 25, 0), App.Vector(0, 0, 1), 6), math.radians(0), math.radians(90)),
    Part.LineSegment(App.Vector(45, 26, 0), App.Vector(45, -26, 0)),
    Part.ArcOfCircle(Part.Circle(App.Vector(40, -25, 0), App.Vector(0, 0, 1), 6), math.radians(-90), math.radians(0)),
    Part.LineSegment(App.Vector(40, -31, 0), App.Vector(-40, -31, 0)),
    Part.ArcOfCircle(Part.Circle(App.Vector(-40, -25, 0), App.Vector(0, 0, 1), 6), math.radians(-180), math.radians(-90)),
    Part.LineSegment(App.Vector(-45, -26, 0), App.Vector(-45, 26, 0)),
], False)
sketch11.addConstraint([
    Sketcher.Constraint("Tangent", 0, 2, 1, 1),
    Sketcher.Constraint("Tangent", 1, 2, 2, 1),
    Sketcher.Constraint("Tangent", 2, 2, 3, 1),
    Sketcher.Constraint("Tangent", 3, 2, 4, 1),
    Sketcher.Constraint("Tangent", 4, 2, 5, 1),
    Sketcher.Constraint("Tangent", 5, 2, 6, 1),
    Sketcher.Constraint("Tangent", 6, 2, 7, 1),
    Sketcher.Constraint("Tangent", 7, 2, 0, 1),
    Sketcher.Constraint("Tangent", 8, 1, 9, 1),
    Sketcher.Constraint("Tangent", 9, 2, 10, 2),
    Sketcher.Constraint("Tangent", 10, 1, 11, 1),
    Sketcher.Constraint("Tangent", 11, 2, 12, 2),
    Sketcher.Constraint("Tangent", 12, 1, 13, 1),
    Sketcher.Constraint("Tangent", 13, 2, 14, 2),
    Sketcher.Constraint("Tangent", 14, 1, 15, 1),
    Sketcher.Constraint("Tangent", 15, 2, 8, 2),
    Sketcher.Constraint("Vertical", 1),
    Sketcher.Constraint("Horizontal", 3),
    Sketcher.Constraint("Vertical", 5),
    Sketcher.Constraint("Horizontal", 7),
    Sketcher.Constraint("Horizontal", 9),
    Sketcher.Constraint("Vertical", 11),
    Sketcher.Constraint("Horizontal", 13),
    Sketcher.Constraint("Vertical", 15),
    Sketcher.Constraint("Coincident", 8, 3, 0, 3),
    Sketcher.Constraint("Coincident", 10, 3, 6, 3),
    Sketcher.Constraint("Coincident", 12, 3, 4, 3),
    Sketcher.Constraint("Equal", 0, 2),
    Sketcher.Constraint("Equal", 2, 4),
    Sketcher.Constraint("Equal", 4, 6),
    Sketcher.Constraint("Equal", 12, 14),
    Sketcher.Constraint("Symmetric", 0, 3, 4, 3, -1, 1),
    Sketcher.Constraint("Radius", 0, 7.5),
    Sketcher.Constraint("Radius", 8, 5.500001),
    Sketcher.Constraint("DistanceY", 1, 2, 1, 1, 51.0),
    Sketcher.Constraint("DistanceX", 3, 1, 3, 2, 79.5),
])
pad11 = doc.addObject("PartDesign::Pad", "Pad010")
body13.addObject(pad11)
pad11.Profile = sketch11
pad11.Length = 52
body14 = doc.addObject("PartDesign::Body", "Body013")

sketch12 = doc.addObject("Sketcher::SketchObject", "Sketch011")
body14.addObject(sketch12)
sketch12.AttachmentSupport = (doc.getObject("XY_Plane013"), [""])
sketch12.MapMode = "FlatFace"
sketch12.addGeometry([
    Part.ArcOfCircle(Part.Circle(App.Vector(-40, 26, 0), App.Vector(0, 0, 1), 7), math.radians(90), math.radians(180)),
    Part.LineSegment(App.Vector(-47, 26, 0), App.Vector(-47, -26, 0)),
    Part.ArcOfCircle(Part.Circle(App.Vector(-40, -26, 0), App.Vector(0, 0, 1), 7), math.radians(180), math.radians(270)),
    Part.LineSegment(App.Vector(-40, -33, 0), App.Vector(40, -33, 0)),
    Part.ArcOfCircle(Part.Circle(App.Vector(40, -26, 0), App.Vector(0, 0, 1), 7), math.radians(-90), math.radians(0)),
    Part.LineSegment(App.Vector(47, -26, 0), App.Vector(47, 26, 0)),
    Part.ArcOfCircle(Part.Circle(App.Vector(40, 26, 0), App.Vector(0, 0, 1), 7), math.radians(0), math.radians(90)),
    Part.LineSegment(App.Vector(40, 33, 0), App.Vector(-40, 33, 0)),
], False)
sketch12.addConstraint([
    Sketcher.Constraint("Tangent", 0, 2, 1, 1),
    Sketcher.Constraint("Tangent", 1, 2, 2, 1),
    Sketcher.Constraint("Tangent", 2, 2, 3, 1),
    Sketcher.Constraint("Tangent", 3, 2, 4, 1),
    Sketcher.Constraint("Tangent", 4, 2, 5, 1),
    Sketcher.Constraint("Tangent", 5, 2, 6, 1),
    Sketcher.Constraint("Tangent", 6, 2, 7, 1),
    Sketcher.Constraint("Tangent", 7, 2, 0, 1),
    Sketcher.Constraint("Vertical", 1),
    Sketcher.Constraint("Horizontal", 3),
    Sketcher.Constraint("Vertical", 5),
    Sketcher.Constraint("Horizontal", 7),
    Sketcher.Constraint("Equal", 0, 2),
    Sketcher.Constraint("Equal", 2, 4),
    Sketcher.Constraint("Equal", 4, 6),
    Sketcher.Constraint("Symmetric", 0, 3, 4, 3, -1, 1),
    Sketcher.Constraint("Radius", 0, 7.5),
    Sketcher.Constraint("DistanceY", 1, 2, 1, 1, 51.0),
    Sketcher.Constraint("DistanceX", 3, 1, 3, 2, 79.5),
])
pad12 = doc.addObject("PartDesign::Pad", "Pad011")
body14.addObject(pad12)
pad12.Profile = sketch12
pad12.Length = 56
body15 = doc.addObject("PartDesign::Body", "Body014")

sketch13 = doc.addObject("Sketcher::SketchObject", "Sketch012")
body15.addObject(sketch13)
sketch13.AttachmentSupport = (doc.getObject("XY_Plane014"), [""])
sketch13.MapMode = "FlatFace"
add_polygon(sketch13, [(0, 2), (0, 0), (100, 0), (100, 2)])
sketch13.addConstraint([
    Sketcher.Constraint("Vertical", 0),
    Sketcher.Constraint("Horizontal", 1),
    Sketcher.Constraint("Vertical", 2),
    Sketcher.Constraint("Horizontal", 3),
    Sketcher.Constraint("Coincident", 0, 2, -1, 1),
    Sketcher.Constraint("DistanceX", 1, 1, 1, 2, 100.0),
    Sketcher.Constraint("DistanceY", 0, 2, 0, 1, 2.0),
])
pad13 = doc.addObject("PartDesign::Pad", "Pad012")
body15.addObject(pad13)
pad13.Profile = sketch13
pad13.Length = 100
body16 = doc.addObject("PartDesign::Body", "Body015")
body16.AllowCompound = True
doc.recompute()

body15.Placement = App.Placement(App.Vector(-50, 37.575129, -1.4), App.Rotation(App.Vector(1, 0, 0), 30))
boolean3 = doc.addObject("PartDesign::Boolean", "Boolean002")
body16.addObject(boolean3)
boolean3.Type = "Fuse"
boolean3.addObjects([body15])
doc.recompute()

boolean4 = doc.addObject("PartDesign::Boolean", "Boolean003")
body16.addObject(boolean4)
boolean4.Type = "Common"
boolean4.addObjects([body14])
doc.recompute()

boolean5 = doc.addObject("PartDesign::Boolean", "Boolean004")
body16.addObject(boolean5)
boolean5.Type = "Fuse"
boolean5.addObjects([body10])
doc.recompute()

boolean6 = doc.addObject("PartDesign::Boolean", "Boolean005")
body16.addObject(boolean6)
boolean6.Type = "Fuse"
boolean6.addObjects([body11])
doc.recompute()

boolean7 = doc.addObject("PartDesign::Boolean", "Boolean006")
body16.addObject(boolean7)
boolean7.Type = "Fuse"
boolean7.addObjects([body12])
doc.recompute()

boolean8 = doc.addObject("PartDesign::Boolean", "Boolean007")
body16.addObject(boolean8)
boolean8.Type = "Fuse"
boolean8.addObjects([body13])
doc.recompute()

boolean9 = doc.addObject("PartDesign::Boolean", "Boolean008")
body16.addObject(boolean9)
boolean9.Type = "Cut"
boolean9.addObjects([body9])
doc.recompute()

boolean10 = doc.addObject("PartDesign::Boolean", "Boolean009")
body16.addObject(boolean10)
boolean10.Type = "Cut"
boolean10.addObjects([body7])
doc.recompute()

boolean11 = doc.addObject("PartDesign::Boolean", "Boolean010")
body16.addObject(boolean11)
boolean11.Type = "Cut"
boolean11.addObjects([body5])
doc.recompute()

boolean12 = doc.addObject("PartDesign::Boolean", "Boolean011")
body16.addObject(boolean12)
boolean12.Type = "Cut"
boolean12.addObjects([body4])
body17 = doc.addObject("PartDesign::Body", "Body016")
body17.AllowCompound = True

sketch14 = doc.addObject("Sketcher::SketchObject", "Sketch013")
body17.addObject(sketch14)
sketch14.AttachmentSupport = (doc.getObject("XY_Plane016"), [""])
sketch14.MapMode = "FlatFace"
sketch14.AttachmentOffset = App.Placement(App.Vector(0, 0, 7), App.Rotation())
add_polygon(sketch14, [(43.8, -14.3), (43.8, -29), (45.2, -29), (45.2, -14.3)])
sketch14.addConstraint([
    Sketcher.Constraint("Vertical", 0),
    Sketcher.Constraint("Horizontal", 1),
    Sketcher.Constraint("Vertical", 2),
    Sketcher.Constraint("Horizontal", 3),
    Sketcher.Constraint("DistanceX", 1, 1, 1, 2, 1.5),
    Sketcher.Constraint("DistanceY", 0, 2, 0, 1, 14.7),
    Sketcher.Constraint("DistanceY", 0, 2, -1, 1, 29.0),
    Sketcher.Constraint("DistanceX", -1, 1, 0, 2, 43.75),
])
pad14 = doc.addObject("PartDesign::Pad", "Pad013")
body17.addObject(pad14)
pad14.Profile = sketch14
pad14.Length = 3
doc.recompute()

chamfer4 = doc.addObject("PartDesign::Chamfer", "Chamfer003")
body17.addObject(chamfer4)
chamfer4.Base = (pad14, edges_at(pad14, [
    (43.75, -29, 8.5),
    (43.75, -21.65, 10),
    (43.75, -14.3, 8.5),
    (43.75, -21.65, 7),
]))
chamfer4.Size = 1.49
doc.recompute()

boolean13 = doc.addObject("PartDesign::Boolean", "Boolean012")
body17.addObject(boolean13)
boolean13.Type = "Fuse"
boolean13.addObjects([body])
doc.recompute()

boolean14 = doc.addObject("PartDesign::Boolean", "Boolean013")
body17.addObject(boolean14)
boolean14.Type = "Fuse"
boolean14.addObjects([body2])
doc.recompute()

boolean15 = doc.addObject("PartDesign::Boolean", "Boolean014")
body17.addObject(boolean15)
boolean15.Type = "Fuse"
boolean15.addObjects([body3])
doc.recompute()

boolean16 = doc.addObject("PartDesign::Boolean", "Boolean015")
body17.addObject(boolean16)
boolean16.Type = "Fuse"
boolean16.addObjects([body16])

doc.recompute()
